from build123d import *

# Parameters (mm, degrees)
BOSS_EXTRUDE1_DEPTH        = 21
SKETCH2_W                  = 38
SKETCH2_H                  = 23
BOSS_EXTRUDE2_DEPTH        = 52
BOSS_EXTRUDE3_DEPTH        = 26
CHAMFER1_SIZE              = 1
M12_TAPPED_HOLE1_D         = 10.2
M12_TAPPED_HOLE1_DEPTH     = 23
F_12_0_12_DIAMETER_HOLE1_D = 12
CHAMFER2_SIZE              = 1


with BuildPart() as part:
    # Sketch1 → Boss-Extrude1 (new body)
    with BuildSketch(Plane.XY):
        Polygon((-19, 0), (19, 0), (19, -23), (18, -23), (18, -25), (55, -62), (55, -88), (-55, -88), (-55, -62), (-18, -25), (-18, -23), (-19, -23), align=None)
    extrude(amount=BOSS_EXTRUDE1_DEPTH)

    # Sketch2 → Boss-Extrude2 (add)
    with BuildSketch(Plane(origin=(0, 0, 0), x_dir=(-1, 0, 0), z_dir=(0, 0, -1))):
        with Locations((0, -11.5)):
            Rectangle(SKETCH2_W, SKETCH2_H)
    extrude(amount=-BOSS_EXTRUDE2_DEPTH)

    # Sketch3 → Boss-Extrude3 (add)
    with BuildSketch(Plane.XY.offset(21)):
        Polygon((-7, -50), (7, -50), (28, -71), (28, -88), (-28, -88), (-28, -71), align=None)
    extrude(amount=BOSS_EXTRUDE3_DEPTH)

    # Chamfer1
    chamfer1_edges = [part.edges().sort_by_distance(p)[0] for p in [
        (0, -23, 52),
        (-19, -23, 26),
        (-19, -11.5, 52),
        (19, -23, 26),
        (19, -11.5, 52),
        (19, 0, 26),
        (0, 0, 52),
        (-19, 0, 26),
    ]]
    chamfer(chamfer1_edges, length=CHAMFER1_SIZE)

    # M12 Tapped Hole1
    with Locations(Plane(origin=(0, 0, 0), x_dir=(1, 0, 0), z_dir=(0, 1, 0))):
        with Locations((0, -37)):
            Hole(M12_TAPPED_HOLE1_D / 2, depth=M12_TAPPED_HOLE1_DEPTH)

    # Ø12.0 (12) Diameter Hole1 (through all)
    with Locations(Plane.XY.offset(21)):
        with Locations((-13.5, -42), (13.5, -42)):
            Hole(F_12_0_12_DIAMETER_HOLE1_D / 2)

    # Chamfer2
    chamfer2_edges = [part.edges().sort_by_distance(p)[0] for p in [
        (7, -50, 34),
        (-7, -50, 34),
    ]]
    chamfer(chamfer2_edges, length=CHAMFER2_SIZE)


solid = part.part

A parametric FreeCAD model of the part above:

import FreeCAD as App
import Part
import Sketcher


def edges_at(feature, points):
    """Names of the edges that pass closest to the given points."""
    edges = feature.Shape.Edges
    near = lambda p: min(range(len(edges)), key=lambda i: edges[i].distToShape(Part.Vertex(*p))[0])
    return sorted({f"Edge{near(p) + 1}" for p in points})


def add_polygon(sketch, points):
    """Adds a closed chain of lines whose ends are joined by coincident constraints."""
    first, n = sketch.GeometryCount, len(points)
    for a, b in zip(points, points[1:] + points[:1]):
        sketch.addGeometry(Part.LineSegment(App.Vector(*a, 0), App.Vector(*b, 0)), False)
    for i in range(n):
        sketch.addConstraint(Sketcher.Constraint("Coincident", first + i, 2, first + (i + 1) % n, 1))

doc = App.newDocument("Part")
body = doc.addObject("PartDesign::Body", "Body")

sketch1 = body.newObject("Sketcher::SketchObject", "Sketch")
sketch1.AttachmentSupport = (doc.getObject("XY_Plane"), [""])
sketch1.MapMode = "FlatFace"
add_polygon(sketch1, [(19, 0), (-19, 0), (-19, -23), (-18, -23), (-18, -25), (-55, -62), (-55, -88), (55, -88), (55, -62), (18, -25), (18, -23), (19, -23)])
sketch1.addConstraint(Sketcher.Constraint("Horizontal", 0))
sketch1.addConstraint(Sketcher.Constraint("Vertical", 1))
sketch1.addConstraint(Sketcher.Constraint("Horizontal", 2))
sketch1.addConstraint(Sketcher.Constraint("Vertical", 3))
sketch1.addConstraint(Sketcher.Constraint("Vertical", 5))
sketch1.addConstraint(Sketcher.Constraint("Horizontal", 6))
sketch1.addConstraint(Sketcher.Constraint("Vertical", 7))
sketch1.addConstraint(Sketcher.Constraint("Vertical", 9))
sketch1.addConstraint(Sketcher.Constraint("Horizontal", 10))
sketch1.addConstraint(Sketcher.Constraint("Vertical", 11))
sketch1.addConstraint(Sketcher.Constraint("Symmetric", 0, 2, 11, 2, -1, 1))
sketch1.addConstraint(Sketcher.Constraint("Symmetric", 4, 2, 7, 2, -2))
sketch1.addConstraint(Sketcher.Constraint("Symmetric", 3, 2, 8, 2, -2))
sketch1.addConstraint(Sketcher.Constraint("Perpendicular", 4, 8))
sketch1.addConstraint(Sketcher.Constraint("Horizontal", 2, 2, 9, 2))
sketch1.addConstraint(Sketcher.Constraint("DistanceX", 0, 2, 0, 1, 38.0))
sketch1.addConstraint(Sketcher.Constraint("DistanceX", 2, 1, 2, 2, 1.0))
sketch1.addConstraint(Sketcher.Constraint("DistanceX", 6, 1, 6, 2, 110.0))
sketch1.addConstraint(Sketcher.Constraint("DistanceY", 1, 2, 1, 1, 23.0))
sketch1.addConstraint(Sketcher.Constraint("DistanceY", 3, 2, 3, 1, 2.0))
sketch1.addConstraint(Sketcher.Constraint("DistanceY", 5, 2, 5, 1, 26.0))
pad1 = body.newObject("PartDesign::Pad", "Pad")
pad1.Profile = sketch1
pad1.Length = 21

sketch2 = body.newObject("Sketcher::SketchObject", "Sketch001")
sketch2.AttachmentSupport = (doc.getObject("XY_Plane"), [""])
sketch2.MapMode = "FlatFace"
add_polygon(sketch2, [(19, 0), (19, -23), (-19, -23), (-19, 0)])
sketch2.addConstraint(Sketcher.Constraint("Vertical", 0))
sketch2.addConstraint(Sketcher.Constraint("Horizontal", 1))
sketch2.addConstraint(Sketcher.Constraint("Vertical", 2))
sketch2.addConstraint(Sketcher.Constraint("Horizontal", 3))
sketch2.addConstraint(Sketcher.Constraint("Symmetric", 2, 2, 3, 2, -1, 1))
sketch2.addConstraint(Sketcher.Constraint("DistanceX", 1, 2, 1, 1, 38.0))
sketch2.addConstraint(Sketcher.Constraint("DistanceY", 0, 2, 0, 1, 23.0))
pad2 = body.newObject("PartDesign::Pad", "Pad001")
pad2.Profile = sketch2
pad2.Length = 52

sketch3 = body.newObject("Sketcher::SketchObject", "Sketch002")
sketch3.AttachmentSupport = (doc.getObject("XY_Plane"), [""])
sketch3.MapMode = "FlatFace"
sketch3.AttachmentOffset = App.Placement(App.Vector(0, 0, 21), App.Rotation())
add_polygon(sketch3, [(7, -50), (-7, -50), (-28, -71), (-28, -88), (28, -88), (28, -71)])
sketch3.addConstraint(Sketcher.Constraint("Horizontal", 0))
sketch3.addConstraint(Sketcher.Constraint("Vertical", 2))
sketch3.addConstraint(Sketcher.Constraint("Horizontal", 3))
sketch3.addConstraint(Sketcher.Constraint("Vertical", 4))
sketch3.addConstraint(Sketcher.Constraint("Symmetric", 1, 2, 4, 2, -2))
sketch3.addConstraint(Sketcher.Constraint("Perpendicular", 1, 5))
sketch3.addConstraint(Sketcher.Constraint("Equal", 1, 5))
sketch3.addConstraint(Sketcher.Constraint("DistanceX", 0, 2, 0, 1, 14.0))
sketch3.addConstraint(Sketcher.Constraint("DistanceX", 3, 1, 3, 2, 56.0))
sketch3.addConstraint(Sketcher.Constraint("DistanceY", 2, 2, 2, 1, 17.0))
sketch3.addConstraint(Sketcher.Constraint("DistanceY", 0, 2, -1, 1, 50.0))
pad3 = body.newObject("PartDesign::Pad", "Pad002")
pad3.Profile = sketch3
pad3.Length = 26
doc.recompute()

chamfer = body.newObject("PartDesign::Chamfer", "Chamfer")
chamfer.Base = (pad3, edges_at(pad3, [
    (0, -23, 52),
    (-19, -23, 26),
    (-19, -11.5, 52),
    (19, -23, 26),
    (19, -11.5, 52),
    (19, 0, 26),
    (0, 0, 52),
    (-19, 0, 26),
]))
chamfer.Size = 1

sketch4 = body.newObject("Sketcher::SketchObject", "Sketch003")
sketch4.AttachmentSupport = (doc.getObject("XZ_Plane"), [""])
sketch4.MapMode = "FlatFace"
sketch4.addGeometry(Part.Circle(App.Vector(0, 37, 0), App.Vector(0, 0, 1), 5), False)
sketch4.addConstraint(Sketcher.Constraint("PointOnObject", 0, 3, -2))
sketch4.addConstraint(Sketcher.Constraint("Diameter", 0, 10.2))
sketch4.addConstraint(Sketcher.Constraint("DistanceY", -1, 1, 0, 3, 37.0))
doc.recompute()
hole = body.newObject("PartDesign::Hole", "Hole")
hole.Profile = sketch4
hole.ThreadType = "None"
hole.Diameter = 10.2
hole.DepthType = "Dimension"
hole.Depth = 23
hole.DrillPoint = "Flat"
hole.Reversed = True

sketch5 = body.newObject("Sketcher::SketchObject", "Sketch004")
sketch5.AttachmentSupport = (doc.getObject("XY_Plane"), [""])
sketch5.MapMode = "FlatFace"
sketch5.AttachmentOffset = App.Placement(App.Vector(0, 0, 21), App.Rotation())
sketch5.addGeometry(Part.Circle(App.Vector(-14, -42, 0), App.Vector(0, 0, 1), 6), False)
sketch5.addGeometry(Part.Circle(App.Vector(14, -42, 0), App.Vector(0, 0, 1), 6), False)
sketch5.addConstraint(Sketcher.Constraint("Equal", 0, 1))
sketch5.addConstraint(Sketcher.Constraint("Symmetric", 0, 3, 1, 3, -2))
sketch5.addConstraint(Sketcher.Constraint("Diameter", 0, 12.0))
sketch5.addConstraint(Sketcher.Constraint("DistanceY", 0, 3, -1, 1, 42.0))
sketch5.addConstraint(Sketcher.Constraint("DistanceX", 0, 3, 1, 3, 27.0))
doc.recompute()
hole2 = body.newObject("PartDesign::Hole", "Hole001")
hole2.Profile = sketch5
hole2.ThreadType = "None"
hole2.Diameter = 12
hole2.DepthType = "ThroughAll"
doc.recompute()

chamfer2 = body.newObject("PartDesign::Chamfer", "Chamfer001")
chamfer2.Base = (hole2, edges_at(hole2, [(7, -50, 34), (-7, -50, 34)]))
chamfer2.Size = 1

doc.recompute()
